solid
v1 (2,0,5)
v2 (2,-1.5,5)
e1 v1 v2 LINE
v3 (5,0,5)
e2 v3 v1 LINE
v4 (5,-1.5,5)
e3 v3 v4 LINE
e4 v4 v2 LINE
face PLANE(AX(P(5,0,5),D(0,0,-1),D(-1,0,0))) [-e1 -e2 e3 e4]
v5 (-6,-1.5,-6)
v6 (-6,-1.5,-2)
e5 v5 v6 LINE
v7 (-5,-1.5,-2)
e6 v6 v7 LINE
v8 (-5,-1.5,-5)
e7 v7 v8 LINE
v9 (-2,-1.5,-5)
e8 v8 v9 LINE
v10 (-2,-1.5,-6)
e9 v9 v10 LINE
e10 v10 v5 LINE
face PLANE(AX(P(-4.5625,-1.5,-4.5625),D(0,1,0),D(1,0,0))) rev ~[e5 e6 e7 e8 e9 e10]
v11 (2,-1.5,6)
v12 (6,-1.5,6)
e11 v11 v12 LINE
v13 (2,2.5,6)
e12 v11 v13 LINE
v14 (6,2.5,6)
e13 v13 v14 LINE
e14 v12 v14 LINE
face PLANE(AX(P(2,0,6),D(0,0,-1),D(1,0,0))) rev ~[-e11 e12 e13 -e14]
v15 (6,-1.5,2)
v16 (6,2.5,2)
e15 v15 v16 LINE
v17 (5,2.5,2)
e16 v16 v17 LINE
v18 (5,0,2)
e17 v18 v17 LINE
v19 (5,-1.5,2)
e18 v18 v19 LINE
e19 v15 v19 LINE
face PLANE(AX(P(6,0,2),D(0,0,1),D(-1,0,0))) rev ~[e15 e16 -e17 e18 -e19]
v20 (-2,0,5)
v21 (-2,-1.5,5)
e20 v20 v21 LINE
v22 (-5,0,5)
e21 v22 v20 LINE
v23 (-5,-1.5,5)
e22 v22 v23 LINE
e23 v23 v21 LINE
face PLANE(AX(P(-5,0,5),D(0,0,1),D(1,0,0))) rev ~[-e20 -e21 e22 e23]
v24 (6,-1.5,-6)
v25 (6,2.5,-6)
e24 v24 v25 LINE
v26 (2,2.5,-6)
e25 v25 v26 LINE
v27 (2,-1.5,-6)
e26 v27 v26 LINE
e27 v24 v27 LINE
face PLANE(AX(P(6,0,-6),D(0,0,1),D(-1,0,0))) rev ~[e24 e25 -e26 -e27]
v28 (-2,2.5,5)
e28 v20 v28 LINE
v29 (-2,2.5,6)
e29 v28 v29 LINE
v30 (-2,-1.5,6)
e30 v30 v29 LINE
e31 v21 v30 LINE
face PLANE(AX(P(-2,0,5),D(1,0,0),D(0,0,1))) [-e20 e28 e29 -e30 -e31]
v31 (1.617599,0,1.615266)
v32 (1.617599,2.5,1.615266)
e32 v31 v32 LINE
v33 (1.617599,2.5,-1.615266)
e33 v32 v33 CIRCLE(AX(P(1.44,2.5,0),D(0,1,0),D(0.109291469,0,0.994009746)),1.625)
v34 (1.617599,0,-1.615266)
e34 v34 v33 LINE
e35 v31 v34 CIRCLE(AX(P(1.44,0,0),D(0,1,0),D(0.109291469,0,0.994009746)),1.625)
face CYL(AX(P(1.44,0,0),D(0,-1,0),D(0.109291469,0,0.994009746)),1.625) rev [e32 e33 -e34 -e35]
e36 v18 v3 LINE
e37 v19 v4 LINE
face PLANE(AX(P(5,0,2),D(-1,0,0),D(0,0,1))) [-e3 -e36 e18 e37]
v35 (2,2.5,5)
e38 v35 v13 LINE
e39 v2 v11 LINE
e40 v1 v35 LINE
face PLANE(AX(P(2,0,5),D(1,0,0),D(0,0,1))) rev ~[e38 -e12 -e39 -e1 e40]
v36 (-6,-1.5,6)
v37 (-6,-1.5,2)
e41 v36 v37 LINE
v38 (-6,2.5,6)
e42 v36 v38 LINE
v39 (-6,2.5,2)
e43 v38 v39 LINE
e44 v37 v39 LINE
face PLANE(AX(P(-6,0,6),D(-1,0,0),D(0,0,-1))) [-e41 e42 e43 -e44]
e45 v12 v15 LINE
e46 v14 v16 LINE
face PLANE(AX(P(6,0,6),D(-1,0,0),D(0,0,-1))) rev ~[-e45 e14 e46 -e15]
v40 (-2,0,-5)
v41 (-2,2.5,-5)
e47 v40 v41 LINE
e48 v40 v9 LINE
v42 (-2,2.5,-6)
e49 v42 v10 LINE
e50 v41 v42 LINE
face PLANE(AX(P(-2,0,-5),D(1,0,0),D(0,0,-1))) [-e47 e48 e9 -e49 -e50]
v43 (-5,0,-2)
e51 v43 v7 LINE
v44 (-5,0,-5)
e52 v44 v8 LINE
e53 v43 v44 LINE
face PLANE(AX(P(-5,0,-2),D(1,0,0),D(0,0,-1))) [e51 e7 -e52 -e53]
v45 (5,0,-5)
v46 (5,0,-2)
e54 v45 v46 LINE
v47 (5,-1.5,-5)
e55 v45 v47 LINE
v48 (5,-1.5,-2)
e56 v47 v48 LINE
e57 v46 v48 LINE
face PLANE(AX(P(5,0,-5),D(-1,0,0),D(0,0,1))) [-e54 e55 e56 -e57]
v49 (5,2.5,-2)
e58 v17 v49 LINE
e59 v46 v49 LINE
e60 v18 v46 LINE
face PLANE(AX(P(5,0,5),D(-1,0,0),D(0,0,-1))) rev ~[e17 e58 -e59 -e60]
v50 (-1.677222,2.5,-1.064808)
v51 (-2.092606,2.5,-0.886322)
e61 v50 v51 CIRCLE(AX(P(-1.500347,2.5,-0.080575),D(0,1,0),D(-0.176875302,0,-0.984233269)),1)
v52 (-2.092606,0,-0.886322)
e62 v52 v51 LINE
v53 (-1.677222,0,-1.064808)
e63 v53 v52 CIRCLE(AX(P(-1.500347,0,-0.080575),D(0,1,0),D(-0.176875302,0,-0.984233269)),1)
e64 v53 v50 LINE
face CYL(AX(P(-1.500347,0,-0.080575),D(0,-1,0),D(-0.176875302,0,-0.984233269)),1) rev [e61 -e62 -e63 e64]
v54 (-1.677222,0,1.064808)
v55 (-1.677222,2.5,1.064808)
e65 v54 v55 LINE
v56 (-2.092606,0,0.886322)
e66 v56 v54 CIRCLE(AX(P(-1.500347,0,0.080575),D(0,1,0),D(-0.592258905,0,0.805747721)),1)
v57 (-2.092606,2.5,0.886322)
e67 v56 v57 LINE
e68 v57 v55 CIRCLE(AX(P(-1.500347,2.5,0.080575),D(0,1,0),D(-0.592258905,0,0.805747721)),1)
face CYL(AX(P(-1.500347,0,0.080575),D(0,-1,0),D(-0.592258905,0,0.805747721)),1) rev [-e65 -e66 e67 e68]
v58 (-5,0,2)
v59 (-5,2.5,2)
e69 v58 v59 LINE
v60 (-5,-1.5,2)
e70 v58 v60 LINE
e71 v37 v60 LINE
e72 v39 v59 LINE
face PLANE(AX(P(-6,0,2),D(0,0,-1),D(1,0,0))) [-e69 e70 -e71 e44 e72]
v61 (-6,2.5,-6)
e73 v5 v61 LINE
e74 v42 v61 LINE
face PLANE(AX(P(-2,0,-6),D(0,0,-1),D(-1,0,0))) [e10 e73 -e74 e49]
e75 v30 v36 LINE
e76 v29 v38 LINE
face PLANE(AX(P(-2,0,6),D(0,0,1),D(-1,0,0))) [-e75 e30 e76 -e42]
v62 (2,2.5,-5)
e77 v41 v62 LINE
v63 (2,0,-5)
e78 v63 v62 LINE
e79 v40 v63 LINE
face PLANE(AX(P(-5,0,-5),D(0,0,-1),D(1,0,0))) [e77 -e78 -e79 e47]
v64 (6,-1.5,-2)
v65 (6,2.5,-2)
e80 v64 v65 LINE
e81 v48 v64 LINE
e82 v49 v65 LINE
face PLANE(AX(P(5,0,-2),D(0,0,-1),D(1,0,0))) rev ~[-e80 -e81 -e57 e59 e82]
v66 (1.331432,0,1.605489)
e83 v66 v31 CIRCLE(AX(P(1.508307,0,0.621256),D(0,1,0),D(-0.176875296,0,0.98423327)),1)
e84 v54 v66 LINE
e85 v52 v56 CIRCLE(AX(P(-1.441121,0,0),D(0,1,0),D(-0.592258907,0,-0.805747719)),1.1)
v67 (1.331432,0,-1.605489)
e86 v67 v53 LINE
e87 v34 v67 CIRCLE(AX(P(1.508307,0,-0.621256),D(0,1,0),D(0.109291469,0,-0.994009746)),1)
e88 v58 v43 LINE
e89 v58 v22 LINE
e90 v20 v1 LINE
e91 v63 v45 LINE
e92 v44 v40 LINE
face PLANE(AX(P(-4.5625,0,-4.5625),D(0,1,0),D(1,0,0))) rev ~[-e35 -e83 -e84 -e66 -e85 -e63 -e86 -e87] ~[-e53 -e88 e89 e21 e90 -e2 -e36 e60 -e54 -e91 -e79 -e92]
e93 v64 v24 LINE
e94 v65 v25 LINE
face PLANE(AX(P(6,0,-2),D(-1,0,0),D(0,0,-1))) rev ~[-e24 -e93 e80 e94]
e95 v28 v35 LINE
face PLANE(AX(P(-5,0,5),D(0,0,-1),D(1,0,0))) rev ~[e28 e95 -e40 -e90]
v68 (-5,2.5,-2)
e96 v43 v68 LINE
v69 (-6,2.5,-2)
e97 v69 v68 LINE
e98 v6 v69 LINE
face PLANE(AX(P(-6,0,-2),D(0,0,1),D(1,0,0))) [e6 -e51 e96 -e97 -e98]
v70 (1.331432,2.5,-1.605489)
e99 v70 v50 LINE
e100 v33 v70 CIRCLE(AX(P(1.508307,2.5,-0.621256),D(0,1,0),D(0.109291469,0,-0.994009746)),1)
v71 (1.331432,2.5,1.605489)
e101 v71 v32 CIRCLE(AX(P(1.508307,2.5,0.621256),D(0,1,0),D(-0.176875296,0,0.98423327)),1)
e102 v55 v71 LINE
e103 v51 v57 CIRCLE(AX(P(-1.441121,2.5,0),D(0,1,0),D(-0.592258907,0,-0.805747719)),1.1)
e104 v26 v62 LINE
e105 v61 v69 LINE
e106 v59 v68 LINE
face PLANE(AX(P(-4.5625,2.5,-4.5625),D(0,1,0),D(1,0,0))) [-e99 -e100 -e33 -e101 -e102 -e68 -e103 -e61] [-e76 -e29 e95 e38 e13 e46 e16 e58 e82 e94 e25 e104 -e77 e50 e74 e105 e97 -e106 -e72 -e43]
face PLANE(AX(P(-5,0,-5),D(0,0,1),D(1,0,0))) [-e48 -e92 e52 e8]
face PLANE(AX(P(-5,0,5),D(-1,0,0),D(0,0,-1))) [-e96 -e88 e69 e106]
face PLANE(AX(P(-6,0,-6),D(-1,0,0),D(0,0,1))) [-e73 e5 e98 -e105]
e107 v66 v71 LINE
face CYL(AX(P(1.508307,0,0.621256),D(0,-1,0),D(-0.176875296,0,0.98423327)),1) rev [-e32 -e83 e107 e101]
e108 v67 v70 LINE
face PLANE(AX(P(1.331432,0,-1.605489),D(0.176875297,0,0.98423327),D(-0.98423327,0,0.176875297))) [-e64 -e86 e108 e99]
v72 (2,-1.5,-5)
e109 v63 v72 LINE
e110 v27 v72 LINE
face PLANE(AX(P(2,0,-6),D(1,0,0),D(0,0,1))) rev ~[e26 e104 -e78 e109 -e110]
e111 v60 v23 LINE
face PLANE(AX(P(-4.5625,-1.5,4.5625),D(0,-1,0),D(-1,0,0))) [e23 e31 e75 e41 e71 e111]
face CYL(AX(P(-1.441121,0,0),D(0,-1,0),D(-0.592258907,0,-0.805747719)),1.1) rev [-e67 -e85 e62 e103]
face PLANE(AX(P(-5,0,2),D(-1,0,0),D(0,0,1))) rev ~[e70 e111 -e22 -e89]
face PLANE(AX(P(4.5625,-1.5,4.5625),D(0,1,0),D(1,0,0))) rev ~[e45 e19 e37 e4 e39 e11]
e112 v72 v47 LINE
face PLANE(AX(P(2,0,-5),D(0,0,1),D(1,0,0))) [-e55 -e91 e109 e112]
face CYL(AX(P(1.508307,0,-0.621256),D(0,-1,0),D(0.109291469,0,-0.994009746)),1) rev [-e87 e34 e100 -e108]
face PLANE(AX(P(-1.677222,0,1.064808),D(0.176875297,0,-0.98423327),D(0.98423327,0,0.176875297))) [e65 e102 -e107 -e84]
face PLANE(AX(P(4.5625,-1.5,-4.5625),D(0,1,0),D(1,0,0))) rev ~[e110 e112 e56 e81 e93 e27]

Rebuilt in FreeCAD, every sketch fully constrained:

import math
import FreeCAD as App
import Part
import Sketcher
from FreeCAD import Vector
Q = App.Units.Quantity


def add_polygon(sketch, points):
    """Adds a closed chain of lines whose ends are joined by coincident constraints."""
    first, n = sketch.GeometryCount, len(points)
    for a, b in zip(points, points[1:] + points[:1]):
        sketch.addGeometry(Part.LineSegment(App.Vector(*a, 0), App.Vector(*b, 0)), False)
    for i in range(n):
        sketch.addConstraint(Sketcher.Constraint("Coincident", first + i, 2, first + (i + 1) % n, 1))

doc = App.newDocument("Part")
body = doc.addObject("PartDesign::Body", "Body")

# Sketch on XZ plane
sketch1 = body.newObject("Sketcher::SketchObject", "Sketch")
sketch1.AttachmentSupport = (doc.getObject("XZ_Plane"), [""])
sketch1.MapMode = "FlatFace"
add_polygon(sketch1, [(-5, -5), (-5, 5), (5, 5), (5, -5)])  # lines 0-3
sketch1.addGeometry(Part.ArcOfCircle(Part.Circle(Vector(1.44, 0, 0), Vector(0, 0, 1), 1.62), math.radians(-84), math.radians(84)), False)  # 4
sketch1.addGeometry(Part.ArcOfCircle(Part.Circle(Vector(1.51, 0.62, 0), Vector(0, 0, 1), 1), math.radians(83.73), math.radians(100.19)), False)  # 5
sketch1.addGeometry(Part.LineSegment(Vector(1.33, 1.61, 0), Vector(-1.68, 1.06, 0)), False)  # 6
sketch1.addGeometry(Part.ArcOfCircle(Part.Circle(Vector(-1.5, 0.08, 0), Vector(0, 0, 1), 1), math.radians(100), math.radians(126)), False)  # 7
sketch1.addGeometry(Part.ArcOfCircle(Part.Circle(Vector(-1.44, 0, 0), Vector(0, 0, 1), 1.1), math.radians(126), math.radians(234)), False)  # 8
sketch1.addGeometry(Part.ArcOfCircle(Part.Circle(Vector(-1.5, -0.08, 0), Vector(0, 0, 1), 1), math.radians(-126), math.radians(-100)), False)  # 9
sketch1.addGeometry(Part.LineSegment(Vector(-1.68, -1.06, 0), Vector(1.33, -1.61, 0)), False)  # 10
sketch1.addGeometry(Part.ArcOfCircle(Part.Circle(Vector(1.51, -0.62, 0), Vector(0, 0, 1), 1), math.radians(-100.19), math.radians(-83.73)), False)  # 11
sketch1.addConstraint(Sketcher.Constraint("Tangent", 4, 2, 5, 1))
sketch1.addConstraint(Sketcher.Constraint("Tangent", 5, 2, 6, 1))
sketch1.addConstraint(Sketcher.Constraint("Tangent", 6, 2, 7, 1))
sketch1.addConstraint(Sketcher.Constraint("Tangent", 7, 2, 8, 1))
sketch1.addConstraint(Sketcher.Constraint("Tangent", 8, 2, 9, 1))
sketch1.addConstraint(Sketcher.Constraint("Tangent", 9, 2, 10, 1))
sketch1.addConstraint(Sketcher.Constraint("Tangent", 10, 2, 11, 1))
sketch1.addConstraint(Sketcher.Constraint("Tangent", 11, 2, 4, 1))
sketch1.addConstraint(Sketcher.Constraint("Vertical", 0))
sketch1.addConstraint(Sketcher.Constraint("Horizontal", 1))
sketch1.addConstraint(Sketcher.Constraint("Vertical", 2))
sketch1.addConstraint(Sketcher.Constraint("Horizontal", 3))
sketch1.addConstraint(Sketcher.Constraint("Equal", 5, 7))
sketch1.addConstraint(Sketcher.Constraint("Equal", 7, 9))
sketch1.addConstraint(Sketcher.Constraint("Equal", 9, 11))
sketch1.addConstraint(Sketcher.Constraint("Symmetric", 0, 2, 2, 2, -1, 1))
sketch1.addConstraint(Sketcher.Constraint("Symmetric", 7, 3, 9, 3, -1))
sketch1.addConstraint(Sketcher.Constraint("Symmetric", 5, 3, 11, 3, -1))
sketch1.addConstraint(Sketcher.Constraint("Equal", 3, 0))
sketch1.addConstraint(Sketcher.Constraint("Radius", 5, Q("1 mm")))
sketch1.addConstraint(Sketcher.Constraint("Radius", 8, Q("1.1 mm")))
sketch1.addConstraint(Sketcher.Constraint("DistanceX", 1, 1, 1, 2, Q("10 mm")))
sketch1.addConstraint(Sketcher.Constraint("Radius", 4, Q("1.625 mm")))
sketch1.addConstraint(Sketcher.Constraint("DistanceX", -1, 1, 4, 3, Q("1.44 mm")))
sketch1.addConstraint(Sketcher.Constraint("DistanceX", -1, 1, 4, 2, Q("1.617599 mm")))
sketch1.addConstraint(Sketcher.Constraint("DistanceX", 6, 2, 8, 3, Q("0.236101 mm")))
sketch1.addConstraint(Sketcher.Constraint("Distance", 6, Q("3.05685 mm")))
pad1 = body.newObject("PartDesign::Pad", "Pad")
pad1.Profile = sketch1
pad1.Length = 2.5
pad1.Reversed = True

# Sketch on XZ plane
sketch2 = body.newObject("Sketcher::SketchObject", "Sketch001")
sketch2.AttachmentSupport = (doc.getObject("XZ_Plane"), [""])
sketch2.MapMode = "FlatFace"
add_polygon(sketch2, [(-2, -6), (-6, -6), (-6, -2), (-5, -2), (-5, -5), (-2, -5)])  # lines 0-5
add_polygon(sketch2, [(2, -6), (2, -5), (5, -5), (5, -2), (6, -2), (6, -6)])  # lines 6-11
add_polygon(sketch2, [(5, 2), (5, 5), (2, 5), (2, 6), (6, 6), (6, 2)])  # lines 12-17
add_polygon(sketch2, [(-5, 2), (-6, 2), (-6, 6), (-2, 6), (-2, 5), (-5, 5)])  # lines 18-23
sketch2.addConstraint(Sketcher.Constraint("Horizontal", 0))
sketch2.addConstraint(Sketcher.Constraint("Vertical", 1))
sketch2.addConstraint(Sketcher.Constraint("Horizontal", 2))
sketch2.addConstraint(Sketcher.Constraint("Vertical", 3))
sketch2.addConstraint(Sketcher.Constraint("Horizontal", 4))
sketch2.addConstraint(Sketcher.Constraint("Vertical", 5))
sketch2.addConstraint(Sketcher.Constraint("Vertical", 6))
sketch2.addConstraint(Sketcher.Constraint("Horizontal", 7))
sketch2.addConstraint(Sketcher.Constraint("Vertical", 8))
sketch2.addConstraint(Sketcher.Constraint("Horizontal", 9))
sketch2.addConstraint(Sketcher.Constraint("Vertical", 10))
sketch2.addConstraint(Sketcher.Constraint("Horizontal", 11))
sketch2.addConstraint(Sketcher.Constraint("Vertical", 12))
sketch2.addConstraint(Sketcher.Constraint("Horizontal", 13))
sketch2.addConstraint(Sketcher.Constraint("Vertical", 14))
sketch2.addConstraint(Sketcher.Constraint("Horizontal", 15))
sketch2.addConstraint(Sketcher.Constraint("Vertical", 16))
sketch2.addConstraint(Sketcher.Constraint("Horizontal", 17))
sketch2.addConstraint(Sketcher.Constraint("Horizontal", 18))
sketch2.addConstraint(Sketcher.Constraint("Vertical", 19))
sketch2.addConstraint(Sketcher.Constraint("Horizontal", 20))
sketch2.addConstraint(Sketcher.Constraint("Vertical", 21))
sketch2.addConstraint(Sketcher.Constraint("Horizontal", 22))
sketch2.addConstraint(Sketcher.Constraint("Vertical", 23))
sketch2.addConstraint(Sketcher.Constraint("Symmetric", 3, 2, 12, 2, -1, 1))
sketch2.addConstraint(Sketcher.Constraint("Symmetric", 5, 2, 14, 2, -1, 1))
sketch2.addConstraint(Sketcher.Constraint("Symmetric", 1, 2, 16, 2, -1, 1))
sketch2.addConstraint(Sketcher.Constraint("Symmetric", 9, 2, 18, 2, -1, 1))
sketch2.addConstraint(Sketcher.Constraint("Symmetric", 11, 2, 20, 2, -1, 1))
sketch2.addConstraint(Sketcher.Constraint("Symmetric", 7, 2, 22, 2, -1, 1))
sketch2.addConstraint(Sketcher.Constraint("Symmetric", 4, 2, 6, 2, -2))
sketch2.addConstraint(Sketcher.Constraint("Symmetric", 2, 2, 8, 2, -2))
sketch2.addConstraint(Sketcher.Constraint("Symmetric", 0, 2, 10, 2, -2))
sketch2.addConstraint(Sketcher.Constraint("Equal", 20, 1))
sketch2.addConstraint(Sketcher.Constraint("Equal", 22, 3))
sketch2.addConstraint(Sketcher.Constraint("DistanceX", 0, 2, 0, 1, Q("4 mm")))
sketch2.addConstraint(Sketcher.Constraint("DistanceX", 2, 1, 2, 2, Q("1 mm")))
sketch2.addConstraint(Sketcher.Constraint("DistanceX", 0, 2, -1, 1, Q("6 mm")))
sketch2.addConstraint(Sketcher.Constraint("DistanceY", 0, 2, -1, 1, Q("6 mm")))
pad2 = body.newObject("PartDesign::Pad", "Pad001")
pad2.Profile = sketch2
pad2.Length = 2.5
pad2.Reversed = True

# Sketch on XZ plane
sketch3 = body.newObject("Sketcher::SketchObject", "Sketch002")
sketch3.AttachmentSupport = (doc.getObject("XZ_Plane"), [""])
sketch3.MapMode = "FlatFace"
add_polygon(sketch3, [(-2, -6), (-6, -6), (-6, -2), (-5, -2), (-5, -5), (-2, -5)])  # lines 0-5
add_polygon(sketch3, [(2, -6), (2, -5), (5, -5), (5, -2), (6, -2), (6, -6)])  # lines 6-11
add_polygon(sketch3, [(5, 2), (5, 5), (2, 5), (2, 6), (6, 6), (6, 2)])  # lines 12-17
add_polygon(sketch3, [(-5, 2), (-6, 2), (-6, 6), (-2, 6), (-2, 5), (-5, 5)])  # lines 18-23
sketch3.addConstraint(Sketcher.Constraint("Horizontal", 0))
sketch3.addConstraint(Sketcher.Constraint("Vertical", 1))
sketch3.addConstraint(Sketcher.Constraint("Horizontal", 2))
sketch3.addConstraint(Sketcher.Constraint("Vertical", 3))
sketch3.addConstraint(Sketcher.Constraint("Horizontal", 4))
sketch3.addConstraint(Sketcher.Constraint("Vertical", 5))
sketch3.addConstraint(Sketcher.Constraint("Vertical", 6))
sketch3.addConstraint(Sketcher.Constraint("Horizontal", 7))
sketch3.addConstraint(Sketcher.Constraint("Vertical", 8))
sketch3.addConstraint(Sketcher.Constraint("Horizontal", 9))
sketch3.addConstraint(Sketcher.Constraint("Vertical", 10))
sketch3.addConstraint(Sketcher.Constraint("Horizontal", 11))
sketch3.addConstraint(Sketcher.Constraint("Vertical", 12))
sketch3.addConstraint(Sketcher.Constraint("Horizontal", 13))
sketch3.addConstraint(Sketcher.Constraint("Vertical", 14))
sketch3.addConstraint(Sketcher.Constraint("Horizontal", 15))
sketch3.addConstraint(Sketcher.Constraint("Vertical", 16))
sketch3.addConstraint(Sketcher.Constraint("Horizontal", 17))
sketch3.addConstraint(Sketcher.Constraint("Horizontal", 18))
sketch3.addConstraint(Sketcher.Constraint("Vertical", 19))
sketch3.addConstraint(Sketcher.Constraint("Horizontal", 20))
sketch3.addConstraint(Sketcher.Constraint("Vertical", 21))
sketch3.addConstraint(Sketcher.Constraint("Horizontal", 22))
sketch3.addConstraint(Sketcher.Constraint("Vertical", 23))
sketch3.addConstraint(Sketcher.Constraint("Symmetric", 3, 2, 12, 2, -1, 1))
sketch3.addConstraint(Sketcher.Constraint("Symmetric", 5, 2, 14, 2, -1, 1))
sketch3.addConstraint(Sketcher.Constraint("Symmetric", 1, 2, 16, 2, -1, 1))
sketch3.addConstraint(Sketcher.Constraint("Symmetric", 9, 2, 18, 2, -1, 1))
sketch3.addConstraint(Sketcher.Constraint("Symmetric", 11, 2, 20, 2, -1, 1))
sketch3.addConstraint(Sketcher.Constraint("Symmetric", 7, 2, 22, 2, -1, 1))
sketch3.addConstraint(Sketcher.Constraint("Symmetric", 4, 2, 6, 2, -2))
sketch3.addConstraint(Sketcher.Constraint("Symmetric", 2, 2, 8, 2, -2))
sketch3.addConstraint(Sketcher.Constraint("Symmetric", 0, 2, 10, 2, -2))
sketch3.addConstraint(Sketcher.Constraint("Equal", 20, 1))
sketch3.addConstraint(Sketcher.Constraint("Equal", 22, 3))
sketch3.addConstraint(Sketcher.Constraint("DistanceX", 0, 2, 0, 1, Q("4 mm")))
sketch3.addConstraint(Sketcher.Constraint("DistanceX", 2, 1, 2, 2, Q("1 mm")))
sketch3.addConstraint(Sketcher.Constraint("DistanceX", 0, 2, -1, 1, Q("6 mm")))
sketch3.addConstraint(Sketcher.Constraint("DistanceY", 0, 2, -1, 1, Q("6 mm")))
pad3 = body.newObject("PartDesign::Pad", "Pad002")
pad3.Profile = sketch3
pad3.Length = 1.5

doc.recompute()
